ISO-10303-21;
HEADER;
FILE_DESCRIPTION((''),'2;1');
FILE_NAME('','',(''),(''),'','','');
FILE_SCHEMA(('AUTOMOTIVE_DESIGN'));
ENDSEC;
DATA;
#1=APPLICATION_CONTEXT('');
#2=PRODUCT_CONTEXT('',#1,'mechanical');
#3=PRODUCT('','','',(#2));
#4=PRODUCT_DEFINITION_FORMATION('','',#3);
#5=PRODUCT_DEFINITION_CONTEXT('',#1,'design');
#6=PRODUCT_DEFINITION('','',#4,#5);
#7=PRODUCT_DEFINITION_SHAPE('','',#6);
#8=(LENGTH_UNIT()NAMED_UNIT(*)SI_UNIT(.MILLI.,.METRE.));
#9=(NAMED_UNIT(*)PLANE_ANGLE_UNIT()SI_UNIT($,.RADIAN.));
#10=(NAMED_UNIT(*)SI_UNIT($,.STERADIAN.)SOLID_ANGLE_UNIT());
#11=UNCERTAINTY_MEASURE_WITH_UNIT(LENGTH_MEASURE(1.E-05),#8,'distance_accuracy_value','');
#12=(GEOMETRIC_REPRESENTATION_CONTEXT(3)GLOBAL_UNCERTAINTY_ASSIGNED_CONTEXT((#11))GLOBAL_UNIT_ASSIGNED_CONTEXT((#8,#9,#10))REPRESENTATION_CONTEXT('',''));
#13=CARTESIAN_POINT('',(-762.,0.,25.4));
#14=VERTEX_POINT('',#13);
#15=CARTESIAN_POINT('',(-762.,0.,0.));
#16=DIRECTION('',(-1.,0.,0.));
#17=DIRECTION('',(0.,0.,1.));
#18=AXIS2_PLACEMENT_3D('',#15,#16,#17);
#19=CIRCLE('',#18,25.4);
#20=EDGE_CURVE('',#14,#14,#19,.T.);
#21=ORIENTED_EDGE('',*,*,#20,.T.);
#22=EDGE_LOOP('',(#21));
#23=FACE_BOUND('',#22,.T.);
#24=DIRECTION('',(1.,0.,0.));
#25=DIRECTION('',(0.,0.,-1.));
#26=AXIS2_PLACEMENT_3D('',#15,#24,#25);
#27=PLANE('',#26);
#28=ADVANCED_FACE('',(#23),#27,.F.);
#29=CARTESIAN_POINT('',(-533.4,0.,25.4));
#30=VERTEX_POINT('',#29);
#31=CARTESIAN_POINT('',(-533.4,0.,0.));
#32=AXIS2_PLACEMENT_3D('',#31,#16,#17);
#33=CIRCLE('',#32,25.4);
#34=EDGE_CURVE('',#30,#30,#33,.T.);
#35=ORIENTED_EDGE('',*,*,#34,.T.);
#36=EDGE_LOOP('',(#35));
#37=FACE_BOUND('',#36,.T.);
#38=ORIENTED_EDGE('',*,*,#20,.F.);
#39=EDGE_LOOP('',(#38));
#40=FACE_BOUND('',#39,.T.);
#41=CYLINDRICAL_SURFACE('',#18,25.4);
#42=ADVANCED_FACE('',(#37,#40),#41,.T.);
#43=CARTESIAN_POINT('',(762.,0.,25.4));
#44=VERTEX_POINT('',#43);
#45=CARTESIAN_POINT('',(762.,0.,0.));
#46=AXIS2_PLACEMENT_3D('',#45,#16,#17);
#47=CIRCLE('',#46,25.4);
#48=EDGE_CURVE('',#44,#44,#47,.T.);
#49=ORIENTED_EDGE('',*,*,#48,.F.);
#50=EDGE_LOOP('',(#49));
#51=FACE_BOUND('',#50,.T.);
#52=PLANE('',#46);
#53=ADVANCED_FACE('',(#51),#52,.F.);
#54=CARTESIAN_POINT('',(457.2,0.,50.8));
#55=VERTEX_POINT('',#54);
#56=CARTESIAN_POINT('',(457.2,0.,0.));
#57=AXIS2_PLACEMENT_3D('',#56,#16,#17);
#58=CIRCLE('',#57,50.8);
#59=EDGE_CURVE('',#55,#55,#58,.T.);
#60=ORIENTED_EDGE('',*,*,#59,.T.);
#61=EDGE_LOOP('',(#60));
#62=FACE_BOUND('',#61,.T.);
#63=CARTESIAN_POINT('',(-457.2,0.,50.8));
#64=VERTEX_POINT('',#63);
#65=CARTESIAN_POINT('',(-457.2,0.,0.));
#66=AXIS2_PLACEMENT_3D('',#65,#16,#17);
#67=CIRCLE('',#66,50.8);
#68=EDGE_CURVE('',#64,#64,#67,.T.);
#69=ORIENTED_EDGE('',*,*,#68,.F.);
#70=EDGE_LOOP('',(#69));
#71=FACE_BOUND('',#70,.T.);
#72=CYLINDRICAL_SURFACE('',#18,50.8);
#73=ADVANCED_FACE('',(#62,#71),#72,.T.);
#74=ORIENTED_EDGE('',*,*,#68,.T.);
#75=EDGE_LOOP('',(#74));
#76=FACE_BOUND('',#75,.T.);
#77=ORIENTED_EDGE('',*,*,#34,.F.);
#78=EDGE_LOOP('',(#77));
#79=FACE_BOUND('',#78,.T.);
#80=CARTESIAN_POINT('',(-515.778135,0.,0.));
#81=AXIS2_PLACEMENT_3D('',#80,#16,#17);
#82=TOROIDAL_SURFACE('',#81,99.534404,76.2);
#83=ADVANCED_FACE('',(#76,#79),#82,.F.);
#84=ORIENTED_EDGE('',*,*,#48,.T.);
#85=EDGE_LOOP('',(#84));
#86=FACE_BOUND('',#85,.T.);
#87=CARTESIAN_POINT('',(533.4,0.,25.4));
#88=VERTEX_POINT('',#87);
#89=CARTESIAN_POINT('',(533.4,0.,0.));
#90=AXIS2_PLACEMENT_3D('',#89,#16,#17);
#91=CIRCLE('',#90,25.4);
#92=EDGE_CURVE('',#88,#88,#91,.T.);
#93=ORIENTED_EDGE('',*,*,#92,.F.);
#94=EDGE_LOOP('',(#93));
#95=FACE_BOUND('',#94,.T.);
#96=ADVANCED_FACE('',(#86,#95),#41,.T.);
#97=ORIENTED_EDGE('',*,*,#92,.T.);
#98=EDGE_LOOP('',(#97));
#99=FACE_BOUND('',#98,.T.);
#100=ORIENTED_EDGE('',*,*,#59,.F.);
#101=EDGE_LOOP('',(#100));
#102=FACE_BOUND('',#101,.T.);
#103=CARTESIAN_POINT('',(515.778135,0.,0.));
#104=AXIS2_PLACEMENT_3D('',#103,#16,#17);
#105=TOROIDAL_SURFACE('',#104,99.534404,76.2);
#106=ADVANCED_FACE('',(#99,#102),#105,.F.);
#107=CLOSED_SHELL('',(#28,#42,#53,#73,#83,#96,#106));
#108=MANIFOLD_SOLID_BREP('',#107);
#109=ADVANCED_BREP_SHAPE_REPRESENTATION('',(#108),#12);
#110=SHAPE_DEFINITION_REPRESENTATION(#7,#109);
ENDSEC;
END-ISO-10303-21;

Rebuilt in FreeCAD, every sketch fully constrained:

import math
import FreeCAD as App
import Part
import Sketcher

V = App.Vector
Q = App.Units.Quantity

doc = App.newDocument("Part")
params = doc.addObject("Spreadsheet::Sheet", "Params")
for row, (alias, value) in enumerate([
    ("sketch1_radius", "3 in"),
    ("sketch1_width", "60 in"),
    ("sketch1_width2", "9 in"),
    ("sketch1_width3", "36 in"),
    ("sketch1_height", "1 in"),
    ("revolution_angle", "360 deg"),
], start=1):
    params.set(f"A{row}", alias)
    params.set(f"B{row}", "=" + value)
    params.setAlias(f"B{row}", alias)

body = doc.addObject("PartDesign::Body", "Body")

sketch1 = body.newObject("Sketcher::SketchObject", "Sketch")
sketch1.AttachmentSupport = (doc.getObject("XY_Plane"), [""])
sketch1.MapMode = "FlatFace"
sketch1.addGeometry(Part.LineSegment(V(-762, 0, 0), V(762, 0, 0)), False)
sketch1.addGeometry(Part.LineSegment(V(762, 0, 0), V(762, 25.4, 0)), False)
sketch1.addGeometry(Part.LineSegment(V(762, 25.4, 0), V(533.4, 25.4, 0)), False)
sketch1.addGeometry(Part.ArcOfCircle(Part.Circle(V(515.778135, 99.534404, 0), V(0, 0, 1), 76.2), math.radians(-140.241049), math.radians(-76.628849)), False)
sketch1.addGeometry(Part.LineSegment(V(457.2, 50.8, 0), V(-457.2, 50.8, 0)), False)
sketch1.addGeometry(Part.ArcOfCircle(Part.Circle(V(-515.778135, 99.534404, 0), V(0, 0, 1), 76.2), math.radians(-103.371151), math.radians(-39.758951)), False)
sketch1.addGeometry(Part.LineSegment(V(-533.4, 25.4, 0), V(-762, 25.4, 0)), False)
sketch1.addGeometry(Part.LineSegment(V(-762, 25.4, 0), V(-762, 0, 0)), False)
sketch1.addConstraint(Sketcher.Constraint("Coincident", 0, 2, 1, 1))
sketch1.addConstraint(Sketcher.Constraint("Coincident", 1, 2, 2, 1))
sketch1.addConstraint(Sketcher.Constraint("Coincident", 2, 2, 3, 2))
sketch1.addConstraint(Sketcher.Constraint("Coincident", 3, 1, 4, 1))
sketch1.addConstraint(Sketcher.Constraint("Coincident", 4, 2, 5, 2))
sketch1.addConstraint(Sketcher.Constraint("Coincident", 5, 1, 6, 1))
sketch1.addConstraint(Sketcher.Constraint("Coincident", 6, 2, 7, 1))
sketch1.addConstraint(Sketcher.Constraint("Coincident", 7, 2, 0, 1))
sketch1.addConstraint(Sketcher.Constraint("Horizontal", 0))
sketch1.addConstraint(Sketcher.Constraint("Vertical", 1))
sketch1.addConstraint(Sketcher.Constraint("Horizontal", 2))
sketch1.addConstraint(Sketcher.Constraint("Horizontal", 4))
sketch1.addConstraint(Sketcher.Constraint("Horizontal", 6))
sketch1.addConstraint(Sketcher.Constraint("Vertical", 7))
sketch1.addConstraint(Sketcher.Constraint("Equal", 3, 5))
sketch1.addConstraint(Sketcher.Constraint("Symmetric", 0, 2, 7, 2, -1, 1))
sketch1.addConstraint(Sketcher.Constraint("Symmetric", 3, 3, 5, 3, -2))
sketch1.addConstraint(Sketcher.Constraint("Horizontal", 2, 2, 5, 1))
sketch1.addConstraint(Sketcher.Constraint("Radius", 3, Q("3 in")))
sketch1.addConstraint(Sketcher.Constraint("DistanceX", 0, 1, 0, 2, Q("60 in")))
sketch1.addConstraint(Sketcher.Constraint("DistanceX", 2, 2, 2, 1, Q("9 in")))
sketch1.addConstraint(Sketcher.Constraint("DistanceX", 4, 2, 4, 1, Q("36 in")))
sketch1.addConstraint(Sketcher.Constraint("DistanceY", 1, 1, 1, 2, Q("1 in")))
sketch1.addConstraint(Sketcher.Constraint("DistanceY", -1, 1, 3, 1, Q("2 in")))
sketch1.setExpression("Constraints[18]", "Params.sketch1_radius")
sketch1.setExpression("Constraints[19]", "Params.sketch1_width")
sketch1.setExpression("Constraints[20]", "Params.sketch1_width2")
sketch1.setExpression("Constraints[21]", "Params.sketch1_width3")
sketch1.setExpression("Constraints[22]", "Params.sketch1_height")
revolution = body.newObject("PartDesign::Revolution", "Revolution")
revolution.Profile = sketch1
revolution.ReferenceAxis = (sketch1, ["H_Axis"])
revolution.setExpression("Angle", "Params.revolution_angle")

doc.recompute()
